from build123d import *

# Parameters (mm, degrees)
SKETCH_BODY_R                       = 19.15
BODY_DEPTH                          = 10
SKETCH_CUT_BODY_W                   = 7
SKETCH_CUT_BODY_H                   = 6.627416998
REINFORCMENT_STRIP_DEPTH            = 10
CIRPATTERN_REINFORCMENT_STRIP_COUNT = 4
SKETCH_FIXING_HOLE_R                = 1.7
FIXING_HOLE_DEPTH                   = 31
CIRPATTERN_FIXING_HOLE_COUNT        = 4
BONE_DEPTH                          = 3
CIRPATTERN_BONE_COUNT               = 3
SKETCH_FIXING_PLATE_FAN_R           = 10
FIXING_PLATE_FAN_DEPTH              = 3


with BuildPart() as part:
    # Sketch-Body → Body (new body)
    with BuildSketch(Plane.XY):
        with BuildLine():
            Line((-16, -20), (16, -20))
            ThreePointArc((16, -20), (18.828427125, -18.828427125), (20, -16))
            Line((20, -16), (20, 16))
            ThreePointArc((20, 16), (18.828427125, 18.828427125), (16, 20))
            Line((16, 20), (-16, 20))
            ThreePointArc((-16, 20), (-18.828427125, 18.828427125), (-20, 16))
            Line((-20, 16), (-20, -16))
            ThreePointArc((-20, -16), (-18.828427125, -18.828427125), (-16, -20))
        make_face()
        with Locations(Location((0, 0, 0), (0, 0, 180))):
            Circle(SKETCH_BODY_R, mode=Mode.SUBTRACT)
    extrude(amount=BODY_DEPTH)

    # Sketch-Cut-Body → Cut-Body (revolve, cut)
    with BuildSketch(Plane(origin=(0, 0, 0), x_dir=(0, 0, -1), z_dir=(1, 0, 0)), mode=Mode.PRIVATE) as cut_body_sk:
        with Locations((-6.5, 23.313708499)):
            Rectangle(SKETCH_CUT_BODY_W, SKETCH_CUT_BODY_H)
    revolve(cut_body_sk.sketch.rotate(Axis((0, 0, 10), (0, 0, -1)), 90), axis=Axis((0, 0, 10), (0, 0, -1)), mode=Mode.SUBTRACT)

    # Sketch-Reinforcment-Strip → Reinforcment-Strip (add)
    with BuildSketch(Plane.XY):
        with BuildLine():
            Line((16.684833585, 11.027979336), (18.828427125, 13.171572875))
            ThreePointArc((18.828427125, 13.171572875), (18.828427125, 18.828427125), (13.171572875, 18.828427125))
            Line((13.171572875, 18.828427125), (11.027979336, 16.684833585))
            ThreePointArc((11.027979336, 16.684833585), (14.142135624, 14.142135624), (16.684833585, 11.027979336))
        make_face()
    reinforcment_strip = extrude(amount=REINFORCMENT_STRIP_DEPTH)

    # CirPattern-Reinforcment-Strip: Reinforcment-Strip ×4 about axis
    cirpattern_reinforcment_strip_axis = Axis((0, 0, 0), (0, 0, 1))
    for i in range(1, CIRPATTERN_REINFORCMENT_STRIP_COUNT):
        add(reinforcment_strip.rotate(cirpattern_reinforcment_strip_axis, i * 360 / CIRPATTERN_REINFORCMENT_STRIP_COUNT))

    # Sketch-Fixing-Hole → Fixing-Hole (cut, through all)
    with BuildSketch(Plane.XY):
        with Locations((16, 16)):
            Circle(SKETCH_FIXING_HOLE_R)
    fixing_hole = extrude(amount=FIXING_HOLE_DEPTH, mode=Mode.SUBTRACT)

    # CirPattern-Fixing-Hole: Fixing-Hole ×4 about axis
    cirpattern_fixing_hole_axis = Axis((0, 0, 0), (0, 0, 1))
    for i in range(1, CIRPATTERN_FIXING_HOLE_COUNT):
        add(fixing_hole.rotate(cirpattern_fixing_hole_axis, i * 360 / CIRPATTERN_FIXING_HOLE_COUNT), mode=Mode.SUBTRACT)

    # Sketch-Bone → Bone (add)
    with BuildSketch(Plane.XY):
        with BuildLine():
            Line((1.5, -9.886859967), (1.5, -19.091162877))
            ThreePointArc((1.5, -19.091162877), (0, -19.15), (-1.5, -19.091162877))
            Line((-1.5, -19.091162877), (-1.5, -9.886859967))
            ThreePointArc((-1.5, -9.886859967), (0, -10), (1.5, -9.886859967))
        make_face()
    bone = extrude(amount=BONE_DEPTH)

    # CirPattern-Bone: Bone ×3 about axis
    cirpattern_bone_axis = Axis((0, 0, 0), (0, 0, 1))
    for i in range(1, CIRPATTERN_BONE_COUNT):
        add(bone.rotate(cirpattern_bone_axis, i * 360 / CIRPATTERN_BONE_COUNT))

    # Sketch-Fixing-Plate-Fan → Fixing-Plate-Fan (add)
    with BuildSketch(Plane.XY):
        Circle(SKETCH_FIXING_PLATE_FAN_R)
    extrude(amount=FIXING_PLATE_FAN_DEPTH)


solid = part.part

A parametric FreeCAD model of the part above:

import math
import FreeCAD as App
import Part
import Sketcher
from FreeCAD import Vector
Q = App.Units.Quantity

doc = App.newDocument("Part")
body = doc.addObject("PartDesign::Body", "Body")

sketch1 = doc.addObject("Sketcher::SketchObject", "Sketch")
body.addObject(sketch1)
sketch1.AttachmentSupport = (doc.XY_Plane, [""])
sketch1.MapMode = "FlatFace"
sketch1.addGeometry(Part.LineSegment(Vector(-16, -20, 0), Vector(16, -20, 0)), False)
sketch1.addGeometry(Part.ArcOfCircle(Part.Circle(Vector(16, -16, 0), Vector(0, 0, 1), 4), math.radians(-90), math.radians(0)), False)
sketch1.addGeometry(Part.LineSegment(Vector(20, -16, 0), Vector(20, 16, 0)), False)
sketch1.addGeometry(Part.ArcOfCircle(Part.Circle(Vector(16, 16, 0), Vector(0, 0, 1), 4), math.radians(0), math.radians(90)), False)
sketch1.addGeometry(Part.LineSegment(Vector(16, 20, 0), Vector(-16, 20, 0)), False)
sketch1.addGeometry(Part.ArcOfCircle(Part.Circle(Vector(-16, 16, 0), Vector(0, 0, 1), 4), math.radians(90), math.radians(180)), False)
sketch1.addGeometry(Part.LineSegment(Vector(-20, 16, 0), Vector(-20, -16, 0)), False)
sketch1.addGeometry(Part.ArcOfCircle(Part.Circle(Vector(-16, -16, 0), Vector(0, 0, 1), 4), math.radians(180), math.radians(270)), False)
sketch1.addGeometry(Part.Circle(Vector(0, 0, 0), Vector(0, 0, 1), 19.1), False)
sketch1.addConstraint(Sketcher.Constraint("Tangent", 0, 2, 1, 1))
sketch1.addConstraint(Sketcher.Constraint("Tangent", 1, 2, 2, 1))
sketch1.addConstraint(Sketcher.Constraint("Tangent", 2, 2, 3, 1))
sketch1.addConstraint(Sketcher.Constraint("Tangent", 3, 2, 4, 1))
sketch1.addConstraint(Sketcher.Constraint("Tangent", 4, 2, 5, 1))
sketch1.addConstraint(Sketcher.Constraint("Tangent", 5, 2, 6, 1))
sketch1.addConstraint(Sketcher.Constraint("Tangent", 6, 2, 7, 1))
sketch1.addConstraint(Sketcher.Constraint("Tangent", 7, 2, 0, 1))
sketch1.addConstraint(Sketcher.Constraint("Horizontal", 0))
sketch1.addConstraint(Sketcher.Constraint("Vertical", 2))
sketch1.addConstraint(Sketcher.Constraint("Horizontal", 4))
sketch1.addConstraint(Sketcher.Constraint("Vertical", 6))
sketch1.addConstraint(Sketcher.Constraint("Coincident", 8, 3, -1, 1))
sketch1.addConstraint(Sketcher.Constraint("Equal", 1, 3))
sketch1.addConstraint(Sketcher.Constraint("Equal", 3, 5))
sketch1.addConstraint(Sketcher.Constraint("Equal", 5, 7))
sketch1.addConstraint(Sketcher.Constraint("Symmetric", 1, 3, 5, 3, -1, 1))
sketch1.addConstraint(Sketcher.Constraint("Equal", 4, 2))
sketch1.addConstraint(Sketcher.Constraint("Radius", 1, 4.0))
sketch1.addConstraint(Sketcher.Constraint("Diameter", 8, 38.3))
sketch1.addConstraint(Sketcher.Constraint("DistanceX", 0, 1, 0, 2, 32.0))
pad1 = doc.addObject("PartDesign::Pad", "Pad")
body.addObject(pad1)
pad1.Profile = sketch1
pad1.Length = 10

sketch2 = doc.addObject("Sketcher::SketchObject", "Sketch001")
body.addObject(sketch2)
sketch2.AttachmentSupport = (doc.YZ_Plane, [""])
sketch2.MapMode = "FlatFace"
sketch2.addGeometry(Part.LineSegment(Vector(27, 10, 0), Vector(20, 10, 0)), False)
sketch2.addGeometry(Part.LineSegment(Vector(20, 10, 0), Vector(20, 3, 0)), False)
sketch2.addGeometry(Part.LineSegment(Vector(20, 3, 0), Vector(27, 3, 0)), False)
sketch2.addGeometry(Part.LineSegment(Vector(27, 3, 0), Vector(27, 10, 0)), False)
sketch2.addConstraint(Sketcher.Constraint("Coincident", 0, 2, 1, 1))
sketch2.addConstraint(Sketcher.Constraint("Coincident", 1, 2, 2, 1))
sketch2.addConstraint(Sketcher.Constraint("Coincident", 2, 2, 3, 1))
sketch2.addConstraint(Sketcher.Constraint("Coincident", 3, 2, 0, 1))
sketch2.addConstraint(Sketcher.Constraint("Horizontal", 0))
sketch2.addConstraint(Sketcher.Constraint("Vertical", 1))
sketch2.addConstraint(Sketcher.Constraint("Horizontal", 2))
sketch2.addConstraint(Sketcher.Constraint("Vertical", 3))
sketch2.addConstraint(Sketcher.Constraint("DistanceY", 1, 2, 1, 1, 7.0))
sketch2.addConstraint(Sketcher.Constraint("DistanceX", -1, 1, 0, 2, 20.0))
sketch2.addConstraint(Sketcher.Constraint("DistanceY", -1, 1, 0, 2, 10.0))
sketch2.addConstraint(Sketcher.Constraint("DistanceX", 0, 2, 0, 1, 6.627417))
groove = doc.addObject("PartDesign::Groove", "Groove")
body.addObject(groove)
groove.Profile = sketch2
groove.ReferenceAxis = (sketch2, ["V_Axis"])
groove.Angle = 360

sketch3 = doc.addObject("Sketcher::SketchObject", "Sketch002")
body.addObject(sketch3)
sketch3.AttachmentSupport = (doc.XY_Plane, [""])
sketch3.MapMode = "FlatFace"
sketch3.addGeometry(Part.LineSegment(Vector(16.7, 11, 0), Vector(18.8, 13.2, 0)), False)
sketch3.addGeometry(Part.ArcOfCircle(Part.Circle(Vector(16, 16, 0), Vector(0, 0, 1), 4), math.radians(-45), math.radians(135)), False)
sketch3.addGeometry(Part.LineSegment(Vector(13.2, 18.8, 0), Vector(11, 16.7, 0)), False)
sketch3.addGeometry(Part.ArcOfCircle(Part.Circle(Vector(0, 0, 0), Vector(0, 0, 1), 20), math.radians(33), math.radians(57)), False)
sketch3.addConstraint(Sketcher.Constraint("Tangent", 0, 2, 1, 1))
sketch3.addConstraint(Sketcher.Constraint("Tangent", 1, 2, 2, 1))
sketch3.addConstraint(Sketcher.Constraint("Coincident", 2, 2, 3, 2))
sketch3.addConstraint(Sketcher.Constraint("Coincident", 3, 1, 0, 1))
sketch3.addConstraint(Sketcher.Constraint("Coincident", 3, 3, -1, 1))
sketch3.addConstraint(Sketcher.Constraint("Parallel", 0, 2))
sketch3.addConstraint(Sketcher.Constraint("Equal", 0, 2))
sketch3.addConstraint(Sketcher.Constraint("Radius", 1, 4.0))
sketch3.addConstraint(Sketcher.Constraint("Radius", 3, 20.0))
sketch3.addConstraint(Sketcher.Constraint("Angle", 0, Q("45 deg")))
sketch3.addConstraint(Sketcher.Constraint("DistanceX", -1, 1, 1, 3, 16.0))
pad2 = doc.addObject("PartDesign::Pad", "Pad001")
body.addObject(pad2)
pad2.Profile = sketch3
pad2.Length = 10
doc.recompute()

polarpattern = doc.addObject("PartDesign::PolarPattern", "PolarPattern")
body.addObject(polarpattern)
polarpattern.Originals = [pad2]
polarpattern.Axis = (doc.Z_Axis, [""])
polarpattern.Angle = 360
polarpattern.Occurrences = 4
body.Tip = polarpattern

sketch4 = doc.addObject("Sketcher::SketchObject", "Sketch003")
body.addObject(sketch4)
sketch4.AttachmentSupport = (doc.XY_Plane, [""])
sketch4.MapMode = "FlatFace"
sketch4.addGeometry(Part.Circle(Vector(16, 16, 0), Vector(0, 0, 1), 1.7), False)
sketch4.addConstraint(Sketcher.Constraint("Diameter", 0, 3.4))
sketch4.addConstraint(Sketcher.Constraint("DistanceX", -1, 1, 0, 3, 16.0))
sketch4.addConstraint(Sketcher.Constraint("DistanceY", -1, 1, 0, 3, 16.0))
pocket1 = doc.addObject("PartDesign::Pocket", "Pocket")
body.addObject(pocket1)
pocket1.Profile = sketch4
pocket1.Type = "ThroughAll"
pocket1.Reversed = True
doc.recompute()

polarpattern2 = doc.addObject("PartDesign::PolarPattern", "PolarPattern001")
body.addObject(polarpattern2)
polarpattern2.Originals = [pocket1]
polarpattern2.Axis = (doc.Z_Axis, [""])
polarpattern2.Angle = 360
polarpattern2.Occurrences = 4
body.Tip = polarpattern2

sketch5 = doc.addObject("Sketcher::SketchObject", "Sketch004")
body.addObject(sketch5)
sketch5.AttachmentSupport = (doc.XY_Plane, [""])
sketch5.MapMode = "FlatFace"
sketch5.addGeometry(Part.LineSegment(Vector(1.5, -19.1, 0), Vector(1.5, -9.9, 0)), False)
sketch5.addGeometry(Part.ArcOfCircle(Part.Circle(Vector(0, 0, 0), Vector(0, 0, 1), 10), math.radians(-98.63), math.radians(-81.37)), False)
sketch5.addGeometry(Part.LineSegment(Vector(-1.5, -9.9, 0), Vector(-1.5, -19.1, 0)), False)
sketch5.addGeometry(Part.ArcOfCircle(Part.Circle(Vector(0, 0, 0), Vector(0, 0, 1), 19.1), math.radians(-94.49), math.radians(-85.51)), False)
sketch5.addConstraint(Sketcher.Constraint("Coincident", 0, 2, 1, 2))
sketch5.addConstraint(Sketcher.Constraint("Coincident", 1, 1, 2, 1))
sketch5.addConstraint(Sketcher.Constraint("Coincident", 2, 2, 3, 1))
sketch5.addConstraint(Sketcher.Constraint("Coincident", 3, 2, 0, 1))
sketch5.addConstraint(Sketcher.Constraint("Vertical", 0))
sketch5.addConstraint(Sketcher.Constraint("Vertical", 2))
sketch5.addConstraint(Sketcher.Constraint("Coincident", 1, 3, -1, 1))
sketch5.addConstraint(Sketcher.Constraint("Coincident", 3, 3, -1, 1))
sketch5.addConstraint(Sketcher.Constraint("Horizontal", 0, 2, 1, 1))
sketch5.addConstraint(Sketcher.Constraint("Radius", 1, 10.0))
sketch5.addConstraint(Sketcher.Constraint("Radius", 3, 19.15))
sketch5.addConstraint(Sketcher.Constraint("DistanceX", 1, 1, 0, 2, 3.0))
pad3 = doc.addObject("PartDesign::Pad", "Pad002")
body.addObject(pad3)
pad3.Profile = sketch5
pad3.Length = 3
doc.recompute()

polarpattern3 = doc.addObject("PartDesign::PolarPattern", "PolarPattern002")
body.addObject(polarpattern3)
polarpattern3.Originals = [pad3]
polarpattern3.Axis = (doc.Z_Axis, [""])
polarpattern3.Angle = 360
polarpattern3.Occurrences = 3
body.Tip = polarpattern3

sketch6 = doc.addObject("Sketcher::SketchObject", "Sketch005")
body.addObject(sketch6)
sketch6.AttachmentSupport = (doc.XY_Plane, [""])
sketch6.MapMode = "FlatFace"
sketch6.addGeometry(Part.Circle(Vector(0, 0, 0), Vector(0, 0, 1), 10), False)
sketch6.addConstraint(Sketcher.Constraint("Coincident", 0, 3, -1, 1))
sketch6.addConstraint(Sketcher.Constraint("Diameter", 0, 20.0))
pad4 = doc.addObject("PartDesign::Pad", "Pad003")
body.addObject(pad4)
pad4.Profile = sketch6
pad4.Length = 3

doc.recompute()
